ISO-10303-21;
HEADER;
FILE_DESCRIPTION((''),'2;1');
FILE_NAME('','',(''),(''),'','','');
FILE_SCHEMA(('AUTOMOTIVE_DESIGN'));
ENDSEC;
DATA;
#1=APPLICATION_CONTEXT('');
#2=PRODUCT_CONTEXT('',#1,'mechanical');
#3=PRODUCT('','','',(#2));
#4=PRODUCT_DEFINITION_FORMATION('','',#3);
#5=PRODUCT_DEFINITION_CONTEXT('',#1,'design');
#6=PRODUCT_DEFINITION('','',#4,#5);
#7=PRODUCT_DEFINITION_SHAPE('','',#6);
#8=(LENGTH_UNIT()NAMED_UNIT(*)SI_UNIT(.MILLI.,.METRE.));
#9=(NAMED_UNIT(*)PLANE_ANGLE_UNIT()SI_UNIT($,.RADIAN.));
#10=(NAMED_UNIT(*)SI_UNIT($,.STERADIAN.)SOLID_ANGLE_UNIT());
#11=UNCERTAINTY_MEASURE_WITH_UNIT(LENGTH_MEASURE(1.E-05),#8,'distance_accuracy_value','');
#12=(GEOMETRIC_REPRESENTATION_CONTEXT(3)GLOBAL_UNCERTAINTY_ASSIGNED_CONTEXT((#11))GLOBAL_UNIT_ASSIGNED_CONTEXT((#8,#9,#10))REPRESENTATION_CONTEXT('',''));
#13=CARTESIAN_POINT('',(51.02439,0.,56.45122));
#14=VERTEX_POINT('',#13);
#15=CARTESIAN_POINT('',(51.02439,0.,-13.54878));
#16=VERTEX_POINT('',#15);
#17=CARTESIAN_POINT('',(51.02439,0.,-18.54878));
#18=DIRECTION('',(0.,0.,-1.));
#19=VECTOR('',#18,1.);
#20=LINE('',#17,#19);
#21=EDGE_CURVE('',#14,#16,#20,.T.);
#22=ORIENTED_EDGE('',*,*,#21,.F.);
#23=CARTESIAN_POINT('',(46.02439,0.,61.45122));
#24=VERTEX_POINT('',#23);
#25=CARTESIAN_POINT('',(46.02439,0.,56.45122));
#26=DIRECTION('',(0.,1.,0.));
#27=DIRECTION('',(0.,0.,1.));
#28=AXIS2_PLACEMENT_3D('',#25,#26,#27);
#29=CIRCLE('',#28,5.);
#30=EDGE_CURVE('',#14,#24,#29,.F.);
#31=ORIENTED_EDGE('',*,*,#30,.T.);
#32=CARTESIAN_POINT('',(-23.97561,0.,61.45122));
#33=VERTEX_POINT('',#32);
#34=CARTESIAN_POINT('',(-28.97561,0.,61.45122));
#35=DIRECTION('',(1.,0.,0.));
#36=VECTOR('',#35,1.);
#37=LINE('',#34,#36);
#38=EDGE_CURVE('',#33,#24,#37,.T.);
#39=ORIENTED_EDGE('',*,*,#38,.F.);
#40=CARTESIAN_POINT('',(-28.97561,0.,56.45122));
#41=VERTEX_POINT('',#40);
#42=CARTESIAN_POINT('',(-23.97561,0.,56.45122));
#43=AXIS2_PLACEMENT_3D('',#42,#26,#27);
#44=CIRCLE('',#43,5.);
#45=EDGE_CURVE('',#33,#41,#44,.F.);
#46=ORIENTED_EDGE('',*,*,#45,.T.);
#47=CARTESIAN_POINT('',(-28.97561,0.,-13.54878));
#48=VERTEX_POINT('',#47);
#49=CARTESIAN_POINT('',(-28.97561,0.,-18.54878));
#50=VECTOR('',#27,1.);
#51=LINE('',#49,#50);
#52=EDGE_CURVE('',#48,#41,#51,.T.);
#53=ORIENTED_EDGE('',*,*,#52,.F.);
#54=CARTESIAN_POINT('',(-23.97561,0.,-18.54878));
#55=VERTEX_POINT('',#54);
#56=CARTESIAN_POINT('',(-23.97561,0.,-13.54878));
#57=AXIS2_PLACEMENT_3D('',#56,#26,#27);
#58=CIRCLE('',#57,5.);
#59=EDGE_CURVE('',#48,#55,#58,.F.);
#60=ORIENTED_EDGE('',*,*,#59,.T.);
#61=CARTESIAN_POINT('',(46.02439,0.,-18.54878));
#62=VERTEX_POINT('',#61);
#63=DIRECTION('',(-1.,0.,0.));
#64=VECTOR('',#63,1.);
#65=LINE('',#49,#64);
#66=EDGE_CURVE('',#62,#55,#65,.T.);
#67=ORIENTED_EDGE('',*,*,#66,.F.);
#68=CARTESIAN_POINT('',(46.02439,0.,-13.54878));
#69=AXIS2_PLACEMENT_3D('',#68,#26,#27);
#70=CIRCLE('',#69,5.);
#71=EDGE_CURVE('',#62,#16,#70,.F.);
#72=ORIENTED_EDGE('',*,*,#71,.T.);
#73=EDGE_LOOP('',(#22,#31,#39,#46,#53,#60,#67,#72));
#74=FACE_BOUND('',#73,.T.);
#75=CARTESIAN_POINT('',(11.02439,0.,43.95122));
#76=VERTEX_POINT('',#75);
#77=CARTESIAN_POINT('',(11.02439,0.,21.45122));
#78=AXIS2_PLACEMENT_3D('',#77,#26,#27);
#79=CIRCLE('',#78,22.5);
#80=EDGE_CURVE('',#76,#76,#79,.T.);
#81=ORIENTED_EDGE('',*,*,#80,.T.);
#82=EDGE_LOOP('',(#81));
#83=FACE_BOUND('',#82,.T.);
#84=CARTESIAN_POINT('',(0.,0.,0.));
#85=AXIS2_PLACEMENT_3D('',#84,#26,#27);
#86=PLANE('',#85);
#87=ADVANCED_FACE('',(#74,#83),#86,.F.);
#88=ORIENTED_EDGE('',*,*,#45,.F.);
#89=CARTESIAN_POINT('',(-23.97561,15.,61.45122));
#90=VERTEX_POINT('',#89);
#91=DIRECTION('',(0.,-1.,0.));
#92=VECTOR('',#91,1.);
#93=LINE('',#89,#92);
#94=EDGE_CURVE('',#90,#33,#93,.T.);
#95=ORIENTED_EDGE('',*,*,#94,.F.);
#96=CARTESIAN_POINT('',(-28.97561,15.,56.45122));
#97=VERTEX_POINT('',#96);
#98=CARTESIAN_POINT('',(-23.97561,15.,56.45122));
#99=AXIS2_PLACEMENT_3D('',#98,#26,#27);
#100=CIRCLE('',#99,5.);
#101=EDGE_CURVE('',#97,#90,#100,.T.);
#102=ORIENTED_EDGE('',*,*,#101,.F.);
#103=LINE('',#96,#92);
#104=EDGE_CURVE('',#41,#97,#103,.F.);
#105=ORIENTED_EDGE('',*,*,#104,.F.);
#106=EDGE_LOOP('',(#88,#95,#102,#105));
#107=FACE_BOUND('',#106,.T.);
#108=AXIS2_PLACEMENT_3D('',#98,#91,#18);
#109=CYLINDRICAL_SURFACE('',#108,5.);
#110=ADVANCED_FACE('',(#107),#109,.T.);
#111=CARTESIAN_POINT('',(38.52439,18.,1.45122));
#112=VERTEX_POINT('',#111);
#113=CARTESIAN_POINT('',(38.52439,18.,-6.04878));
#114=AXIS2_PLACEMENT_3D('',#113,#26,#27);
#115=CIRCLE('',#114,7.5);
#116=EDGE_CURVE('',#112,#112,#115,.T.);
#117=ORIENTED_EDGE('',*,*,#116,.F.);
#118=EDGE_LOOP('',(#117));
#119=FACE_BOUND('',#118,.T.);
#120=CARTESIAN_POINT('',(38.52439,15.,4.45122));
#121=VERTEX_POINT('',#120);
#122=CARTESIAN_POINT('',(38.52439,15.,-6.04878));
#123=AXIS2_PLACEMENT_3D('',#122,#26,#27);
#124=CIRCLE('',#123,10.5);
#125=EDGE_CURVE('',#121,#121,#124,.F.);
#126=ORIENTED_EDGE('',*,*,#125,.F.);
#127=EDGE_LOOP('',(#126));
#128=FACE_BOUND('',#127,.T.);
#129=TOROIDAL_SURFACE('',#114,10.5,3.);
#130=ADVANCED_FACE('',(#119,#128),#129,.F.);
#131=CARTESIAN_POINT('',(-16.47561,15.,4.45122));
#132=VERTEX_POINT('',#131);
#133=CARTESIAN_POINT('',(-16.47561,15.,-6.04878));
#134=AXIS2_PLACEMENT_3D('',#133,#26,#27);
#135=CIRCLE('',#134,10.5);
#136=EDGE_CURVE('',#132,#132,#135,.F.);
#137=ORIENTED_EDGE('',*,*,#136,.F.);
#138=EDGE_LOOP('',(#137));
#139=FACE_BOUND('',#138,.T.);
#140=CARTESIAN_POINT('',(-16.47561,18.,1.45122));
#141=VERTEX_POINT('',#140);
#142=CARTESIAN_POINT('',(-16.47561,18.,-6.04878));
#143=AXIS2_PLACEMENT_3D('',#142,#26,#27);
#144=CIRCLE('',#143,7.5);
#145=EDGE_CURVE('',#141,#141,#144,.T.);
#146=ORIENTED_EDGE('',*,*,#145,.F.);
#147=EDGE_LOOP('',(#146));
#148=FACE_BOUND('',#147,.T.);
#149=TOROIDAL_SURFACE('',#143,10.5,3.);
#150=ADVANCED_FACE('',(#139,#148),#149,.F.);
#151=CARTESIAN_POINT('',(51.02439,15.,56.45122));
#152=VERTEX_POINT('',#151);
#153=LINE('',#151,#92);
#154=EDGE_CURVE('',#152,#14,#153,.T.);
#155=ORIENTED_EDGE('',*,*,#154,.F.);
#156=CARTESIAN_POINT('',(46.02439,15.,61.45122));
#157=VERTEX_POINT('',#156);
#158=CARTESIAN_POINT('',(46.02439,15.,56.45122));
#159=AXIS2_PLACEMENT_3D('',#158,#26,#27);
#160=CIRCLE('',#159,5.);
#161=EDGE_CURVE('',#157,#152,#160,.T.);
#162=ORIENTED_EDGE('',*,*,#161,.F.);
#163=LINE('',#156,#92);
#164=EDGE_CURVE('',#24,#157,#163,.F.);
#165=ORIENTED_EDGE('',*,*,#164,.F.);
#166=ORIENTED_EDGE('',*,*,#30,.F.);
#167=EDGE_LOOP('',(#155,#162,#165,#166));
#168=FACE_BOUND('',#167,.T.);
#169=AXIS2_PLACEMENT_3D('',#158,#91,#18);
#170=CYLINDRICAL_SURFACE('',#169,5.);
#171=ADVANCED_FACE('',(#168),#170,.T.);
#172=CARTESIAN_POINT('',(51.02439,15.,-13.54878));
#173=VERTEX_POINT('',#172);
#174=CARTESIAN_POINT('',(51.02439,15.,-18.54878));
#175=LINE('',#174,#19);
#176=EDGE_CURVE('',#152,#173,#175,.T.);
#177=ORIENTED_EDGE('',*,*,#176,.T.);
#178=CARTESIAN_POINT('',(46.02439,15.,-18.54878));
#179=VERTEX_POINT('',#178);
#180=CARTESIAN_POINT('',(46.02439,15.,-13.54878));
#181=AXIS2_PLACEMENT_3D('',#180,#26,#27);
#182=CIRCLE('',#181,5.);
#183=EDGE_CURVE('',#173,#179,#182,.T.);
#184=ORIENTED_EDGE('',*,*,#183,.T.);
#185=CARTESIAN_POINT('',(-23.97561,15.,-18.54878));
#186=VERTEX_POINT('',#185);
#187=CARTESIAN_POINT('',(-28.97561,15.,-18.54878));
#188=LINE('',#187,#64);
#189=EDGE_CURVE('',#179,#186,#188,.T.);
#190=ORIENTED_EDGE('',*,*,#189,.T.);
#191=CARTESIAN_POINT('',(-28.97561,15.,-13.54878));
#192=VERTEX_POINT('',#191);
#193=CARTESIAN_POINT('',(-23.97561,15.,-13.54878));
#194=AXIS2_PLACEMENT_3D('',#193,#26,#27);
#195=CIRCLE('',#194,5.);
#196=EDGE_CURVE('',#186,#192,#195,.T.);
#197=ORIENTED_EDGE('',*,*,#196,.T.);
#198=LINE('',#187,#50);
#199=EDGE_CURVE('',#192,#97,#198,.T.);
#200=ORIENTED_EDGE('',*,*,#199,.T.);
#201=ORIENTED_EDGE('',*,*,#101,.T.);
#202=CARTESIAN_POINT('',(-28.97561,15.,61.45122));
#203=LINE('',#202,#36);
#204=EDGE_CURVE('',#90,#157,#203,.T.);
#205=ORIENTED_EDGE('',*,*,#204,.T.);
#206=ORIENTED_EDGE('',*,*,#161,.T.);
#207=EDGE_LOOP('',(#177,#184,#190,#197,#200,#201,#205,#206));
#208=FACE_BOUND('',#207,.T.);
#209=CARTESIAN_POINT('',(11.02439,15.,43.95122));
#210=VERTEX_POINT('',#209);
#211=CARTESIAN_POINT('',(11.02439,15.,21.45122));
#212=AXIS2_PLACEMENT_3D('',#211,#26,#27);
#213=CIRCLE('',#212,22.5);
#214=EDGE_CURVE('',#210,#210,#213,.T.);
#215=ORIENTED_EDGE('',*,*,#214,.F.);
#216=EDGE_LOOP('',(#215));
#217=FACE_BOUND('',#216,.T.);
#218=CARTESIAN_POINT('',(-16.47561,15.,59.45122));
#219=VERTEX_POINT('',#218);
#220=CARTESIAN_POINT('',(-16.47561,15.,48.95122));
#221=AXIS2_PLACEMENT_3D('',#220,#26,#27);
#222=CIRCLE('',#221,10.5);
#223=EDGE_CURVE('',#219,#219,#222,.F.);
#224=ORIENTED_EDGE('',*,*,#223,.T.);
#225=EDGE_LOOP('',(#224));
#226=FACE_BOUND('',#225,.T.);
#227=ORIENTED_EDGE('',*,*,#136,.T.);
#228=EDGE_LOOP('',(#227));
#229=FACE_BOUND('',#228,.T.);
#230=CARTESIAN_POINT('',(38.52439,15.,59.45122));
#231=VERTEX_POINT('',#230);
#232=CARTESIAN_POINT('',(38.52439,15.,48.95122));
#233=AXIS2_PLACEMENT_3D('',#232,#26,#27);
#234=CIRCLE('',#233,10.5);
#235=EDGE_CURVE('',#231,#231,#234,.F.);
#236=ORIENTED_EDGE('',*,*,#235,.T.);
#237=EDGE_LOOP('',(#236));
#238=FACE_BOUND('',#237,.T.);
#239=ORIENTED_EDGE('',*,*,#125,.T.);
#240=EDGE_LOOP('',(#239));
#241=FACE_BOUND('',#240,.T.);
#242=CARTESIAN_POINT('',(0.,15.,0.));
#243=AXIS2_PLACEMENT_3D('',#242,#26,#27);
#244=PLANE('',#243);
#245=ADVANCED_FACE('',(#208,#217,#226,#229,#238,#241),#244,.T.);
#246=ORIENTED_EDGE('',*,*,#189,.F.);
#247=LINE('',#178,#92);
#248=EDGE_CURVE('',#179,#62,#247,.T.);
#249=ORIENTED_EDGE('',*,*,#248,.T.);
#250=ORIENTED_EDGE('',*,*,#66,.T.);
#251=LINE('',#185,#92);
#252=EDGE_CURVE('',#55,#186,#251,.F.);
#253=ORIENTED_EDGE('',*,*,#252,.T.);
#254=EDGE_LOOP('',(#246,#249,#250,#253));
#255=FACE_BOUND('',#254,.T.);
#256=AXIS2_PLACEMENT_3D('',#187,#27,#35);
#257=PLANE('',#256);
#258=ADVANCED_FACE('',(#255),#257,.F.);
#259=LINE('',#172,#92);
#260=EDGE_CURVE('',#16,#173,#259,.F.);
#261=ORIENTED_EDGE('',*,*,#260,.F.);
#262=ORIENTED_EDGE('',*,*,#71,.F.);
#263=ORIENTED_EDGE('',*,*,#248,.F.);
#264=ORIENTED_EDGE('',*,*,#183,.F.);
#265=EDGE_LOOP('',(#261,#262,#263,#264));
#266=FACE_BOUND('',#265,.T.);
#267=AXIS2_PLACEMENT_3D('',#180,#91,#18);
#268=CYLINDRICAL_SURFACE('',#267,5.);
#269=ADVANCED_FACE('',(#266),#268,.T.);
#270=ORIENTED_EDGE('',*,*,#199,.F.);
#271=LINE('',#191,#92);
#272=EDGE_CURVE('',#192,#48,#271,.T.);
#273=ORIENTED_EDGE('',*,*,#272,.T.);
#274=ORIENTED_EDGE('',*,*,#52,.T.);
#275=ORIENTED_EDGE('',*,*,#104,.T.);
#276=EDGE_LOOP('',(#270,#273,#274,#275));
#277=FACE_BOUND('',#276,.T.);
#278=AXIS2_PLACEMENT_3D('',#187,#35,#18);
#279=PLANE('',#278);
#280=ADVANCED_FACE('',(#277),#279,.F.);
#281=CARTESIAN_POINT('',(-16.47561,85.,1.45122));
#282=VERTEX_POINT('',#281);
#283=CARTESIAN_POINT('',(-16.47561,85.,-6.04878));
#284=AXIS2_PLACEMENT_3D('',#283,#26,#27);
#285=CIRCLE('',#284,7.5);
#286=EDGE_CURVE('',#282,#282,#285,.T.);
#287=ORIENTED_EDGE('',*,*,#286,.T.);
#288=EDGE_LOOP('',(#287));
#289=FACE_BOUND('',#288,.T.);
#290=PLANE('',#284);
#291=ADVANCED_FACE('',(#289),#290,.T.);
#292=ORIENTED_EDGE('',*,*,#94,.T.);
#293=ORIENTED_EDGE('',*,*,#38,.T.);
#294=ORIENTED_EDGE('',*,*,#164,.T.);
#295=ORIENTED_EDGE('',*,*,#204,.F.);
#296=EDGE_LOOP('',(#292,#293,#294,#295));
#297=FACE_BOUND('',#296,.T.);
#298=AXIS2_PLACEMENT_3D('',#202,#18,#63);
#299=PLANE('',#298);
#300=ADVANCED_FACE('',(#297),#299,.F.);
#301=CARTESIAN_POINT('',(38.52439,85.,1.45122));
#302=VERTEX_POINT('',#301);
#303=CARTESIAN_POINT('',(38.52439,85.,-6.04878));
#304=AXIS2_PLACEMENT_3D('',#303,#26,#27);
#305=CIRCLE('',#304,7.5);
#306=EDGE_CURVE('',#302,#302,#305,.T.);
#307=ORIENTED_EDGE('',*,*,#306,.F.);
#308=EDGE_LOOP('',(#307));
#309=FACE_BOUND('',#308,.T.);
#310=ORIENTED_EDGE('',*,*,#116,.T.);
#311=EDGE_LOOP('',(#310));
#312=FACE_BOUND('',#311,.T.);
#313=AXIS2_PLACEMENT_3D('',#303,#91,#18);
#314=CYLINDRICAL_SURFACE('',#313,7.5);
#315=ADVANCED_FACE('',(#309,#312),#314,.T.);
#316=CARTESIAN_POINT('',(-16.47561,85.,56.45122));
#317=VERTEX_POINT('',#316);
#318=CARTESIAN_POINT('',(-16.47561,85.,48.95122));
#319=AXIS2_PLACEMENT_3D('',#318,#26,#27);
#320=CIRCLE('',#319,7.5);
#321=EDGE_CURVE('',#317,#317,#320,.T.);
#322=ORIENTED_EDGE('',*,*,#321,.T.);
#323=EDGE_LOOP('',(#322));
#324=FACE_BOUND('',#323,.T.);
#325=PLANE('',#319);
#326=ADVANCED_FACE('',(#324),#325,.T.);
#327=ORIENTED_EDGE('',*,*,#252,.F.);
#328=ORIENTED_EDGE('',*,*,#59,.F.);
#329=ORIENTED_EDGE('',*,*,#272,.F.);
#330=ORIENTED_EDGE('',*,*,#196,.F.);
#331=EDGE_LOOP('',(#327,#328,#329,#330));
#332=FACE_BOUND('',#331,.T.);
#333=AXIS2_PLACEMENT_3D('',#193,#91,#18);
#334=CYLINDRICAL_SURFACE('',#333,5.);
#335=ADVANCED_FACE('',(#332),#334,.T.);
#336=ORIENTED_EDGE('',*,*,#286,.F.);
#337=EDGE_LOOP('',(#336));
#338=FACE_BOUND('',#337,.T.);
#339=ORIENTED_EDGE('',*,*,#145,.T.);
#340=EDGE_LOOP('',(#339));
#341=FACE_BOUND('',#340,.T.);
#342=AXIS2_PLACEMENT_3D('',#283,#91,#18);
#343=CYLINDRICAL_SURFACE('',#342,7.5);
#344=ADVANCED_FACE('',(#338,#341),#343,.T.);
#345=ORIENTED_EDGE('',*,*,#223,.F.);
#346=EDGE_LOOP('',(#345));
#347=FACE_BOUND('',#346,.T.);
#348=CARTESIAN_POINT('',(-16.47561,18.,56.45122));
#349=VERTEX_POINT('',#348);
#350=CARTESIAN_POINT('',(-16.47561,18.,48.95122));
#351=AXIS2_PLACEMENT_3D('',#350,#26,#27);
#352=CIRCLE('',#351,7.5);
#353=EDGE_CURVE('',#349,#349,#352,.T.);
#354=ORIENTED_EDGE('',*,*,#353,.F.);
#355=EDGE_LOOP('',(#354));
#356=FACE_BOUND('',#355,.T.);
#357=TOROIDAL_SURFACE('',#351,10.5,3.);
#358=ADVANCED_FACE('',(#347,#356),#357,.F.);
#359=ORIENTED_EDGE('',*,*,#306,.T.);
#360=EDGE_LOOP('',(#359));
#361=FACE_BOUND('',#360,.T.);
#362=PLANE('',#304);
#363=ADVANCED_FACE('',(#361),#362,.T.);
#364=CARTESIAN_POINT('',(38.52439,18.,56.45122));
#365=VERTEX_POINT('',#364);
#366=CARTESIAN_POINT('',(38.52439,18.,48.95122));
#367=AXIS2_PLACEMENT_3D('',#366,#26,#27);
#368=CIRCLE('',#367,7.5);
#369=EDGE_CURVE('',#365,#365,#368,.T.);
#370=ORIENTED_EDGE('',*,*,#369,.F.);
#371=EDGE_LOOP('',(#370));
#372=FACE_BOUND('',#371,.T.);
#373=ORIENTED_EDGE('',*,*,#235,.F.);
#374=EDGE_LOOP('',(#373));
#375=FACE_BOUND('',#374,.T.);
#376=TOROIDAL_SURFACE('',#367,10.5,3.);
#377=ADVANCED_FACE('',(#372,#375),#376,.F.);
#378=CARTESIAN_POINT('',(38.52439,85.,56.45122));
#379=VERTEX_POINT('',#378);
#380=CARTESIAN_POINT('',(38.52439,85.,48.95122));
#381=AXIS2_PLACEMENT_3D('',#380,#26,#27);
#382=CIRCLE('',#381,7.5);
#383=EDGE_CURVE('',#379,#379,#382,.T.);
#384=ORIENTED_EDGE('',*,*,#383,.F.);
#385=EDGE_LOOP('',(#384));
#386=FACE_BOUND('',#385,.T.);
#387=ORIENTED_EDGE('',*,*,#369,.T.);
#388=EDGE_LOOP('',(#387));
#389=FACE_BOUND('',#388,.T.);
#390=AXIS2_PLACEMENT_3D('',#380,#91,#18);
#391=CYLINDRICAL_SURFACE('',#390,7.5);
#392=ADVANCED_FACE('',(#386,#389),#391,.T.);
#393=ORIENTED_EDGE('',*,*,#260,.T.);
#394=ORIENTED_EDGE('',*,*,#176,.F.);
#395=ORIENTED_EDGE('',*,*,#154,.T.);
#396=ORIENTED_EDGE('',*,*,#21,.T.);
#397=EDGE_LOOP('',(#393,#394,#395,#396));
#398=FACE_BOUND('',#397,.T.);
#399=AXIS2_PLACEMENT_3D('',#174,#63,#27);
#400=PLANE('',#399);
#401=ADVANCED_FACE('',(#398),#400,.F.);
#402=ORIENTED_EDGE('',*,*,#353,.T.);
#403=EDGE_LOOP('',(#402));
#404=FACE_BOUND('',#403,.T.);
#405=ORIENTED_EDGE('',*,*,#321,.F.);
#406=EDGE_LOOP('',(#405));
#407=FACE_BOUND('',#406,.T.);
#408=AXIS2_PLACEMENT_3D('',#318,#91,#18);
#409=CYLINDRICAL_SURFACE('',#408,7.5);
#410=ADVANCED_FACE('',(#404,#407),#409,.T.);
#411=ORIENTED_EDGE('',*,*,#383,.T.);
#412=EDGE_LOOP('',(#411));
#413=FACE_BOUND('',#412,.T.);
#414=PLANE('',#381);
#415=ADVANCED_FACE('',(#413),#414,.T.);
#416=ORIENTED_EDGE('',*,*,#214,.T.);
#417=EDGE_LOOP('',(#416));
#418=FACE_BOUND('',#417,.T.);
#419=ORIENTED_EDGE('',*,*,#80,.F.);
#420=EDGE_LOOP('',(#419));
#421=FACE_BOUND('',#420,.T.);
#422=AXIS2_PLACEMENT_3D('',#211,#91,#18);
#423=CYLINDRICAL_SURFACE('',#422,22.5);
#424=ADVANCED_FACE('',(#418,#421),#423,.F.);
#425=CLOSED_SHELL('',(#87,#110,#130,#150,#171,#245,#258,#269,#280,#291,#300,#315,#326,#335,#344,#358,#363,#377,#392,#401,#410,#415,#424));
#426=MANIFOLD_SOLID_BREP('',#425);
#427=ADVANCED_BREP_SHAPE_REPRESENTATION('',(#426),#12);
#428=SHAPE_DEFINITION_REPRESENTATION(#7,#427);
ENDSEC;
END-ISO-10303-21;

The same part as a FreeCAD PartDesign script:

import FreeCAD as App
import Part
import Sketcher

V = App.Vector
Q = App.Units.Quantity


def edges_at(feature, points):
    """Names of the edges that pass closest to the given points."""
    edges = feature.Shape.Edges
    near = lambda p: min(range(len(edges)), key=lambda i: edges[i].distToShape(Part.Vertex(*p))[0])
    return sorted({f"Edge{near(p) + 1}" for p in points})

doc = App.newDocument("Part")
body = doc.addObject("PartDesign::Body", "Body")

# Sketch on XZ plane
sketch1 = doc.addObject("Sketcher::SketchObject", "Sketch")
body.addObject(sketch1)
sketch1.AttachmentSupport = (doc.XZ_Plane, [""])
sketch1.MapMode = "FlatFace"
sketch1.addGeometry([
    Part.LineSegment(V(-29, -19, 0), V(-29, 61, 0)),  # 0
    Part.LineSegment(V(-29, 61, 0), V(51, 61, 0)),  # 1
    Part.LineSegment(V(51, 61, 0), V(51, -19, 0)),  # 2
    Part.LineSegment(V(51, -19, 0), V(-29, -19, 0)),  # 3
    Part.Circle(V(11, 21, 0), V(0, 0, 1), 22),  # 4
], False)
sketch1.addConstraint([
    Sketcher.Constraint("Coincident", 0, 2, 1, 1),
    Sketcher.Constraint("Coincident", 1, 2, 2, 1),
    Sketcher.Constraint("Coincident", 2, 2, 3, 1),
    Sketcher.Constraint("Coincident", 3, 2, 0, 1),
    Sketcher.Constraint("Vertical", 0),
    Sketcher.Constraint("Horizontal", 1),
    Sketcher.Constraint("Vertical", 2),
    Sketcher.Constraint("Horizontal", 3),
    Sketcher.Constraint("Equal", 3, 0),
    Sketcher.Constraint("Diameter", 4, Q("45 mm")),
    Sketcher.Constraint("DistanceX", 1, 1, 1, 2, Q("80 mm")),
    Sketcher.Constraint("DistanceX", 0, 2, 4, 3, Q("40 mm")),
    Sketcher.Constraint("DistanceY", 4, 3, 0, 2, Q("40 mm")),
    Sketcher.Constraint("DistanceX", -1, 1, 4, 3, Q("11.02439 mm")),
    Sketcher.Constraint("DistanceY", -1, 1, 4, 3, Q("21.45122 mm")),
])
pad1 = doc.addObject("PartDesign::Pad", "Pad")
body.addObject(pad1)
pad1.Profile = sketch1
pad1.Length = 15
pad1.Reversed = True
doc.recompute()

fillet = doc.addObject("PartDesign::Fillet", "Fillet")
body.addObject(fillet)
fillet.Base = (pad1, edges_at(pad1, [
    (-28.976, 7.5, -18.549),
    (51.024, 7.5, -18.549),
    (51.024, 7.5, 61.451),
    (-28.976, 7.5, 61.451),
]))
fillet.Radius = 5

# Sketch on XZ plane
sketch2 = doc.addObject("Sketcher::SketchObject", "Sketch001")
body.addObject(sketch2)
sketch2.AttachmentSupport = (doc.XZ_Plane, [""])
sketch2.MapMode = "FlatFace"
sketch2.AttachmentOffset = App.Placement(V(0, 0, -15), App.Rotation())
sketch2.addGeometry([
    Part.Circle(V(-16, -6, 0), V(0, 0, 1), 8),
    Part.Circle(V(39, -6, 0), V(0, 0, 1), 8),
    Part.Circle(V(39, 49, 0), V(0, 0, 1), 8),
    Part.Circle(V(-16, 49, 0), V(0, 0, 1), 8),
], False)
sketch2.addConstraint([
    Sketcher.Constraint("Equal", 0, 1),
    Sketcher.Constraint("Equal", 1, 2),
    Sketcher.Constraint("Equal", 2, 3),
    Sketcher.Constraint("Horizontal", 0, 3, 1, 3),
    Sketcher.Constraint("Horizontal", 2, 3, 3, 3),
    Sketcher.Constraint("Vertical", 1, 3, 2, 3),
    Sketcher.Constraint("Vertical", 0, 3, 3, 3),
    Sketcher.Constraint("Diameter", 0, Q("15 mm")),
    Sketcher.Constraint("DistanceX", 0, 3, 1, 3, Q("55 mm")),
    Sketcher.Constraint("DistanceY", 1, 3, 2, 3, Q("55 mm")),
    Sketcher.Constraint("DistanceX", 0, 3, -1, 1, Q("16.47561 mm")),
    Sketcher.Constraint("DistanceY", 0, 3, -1, 1, Q("6.04878 mm")),
])
pad2 = doc.addObject("PartDesign::Pad", "Pad001")
body.addObject(pad2)
pad2.Profile = sketch2
pad2.Length = 70
pad2.Reversed = True
doc.recompute()

fillet2 = doc.addObject("PartDesign::Fillet", "Fillet001")
body.addObject(fillet2)
fillet2.Base = (pad2, edges_at(pad2, [
    (-16.476, 15, -13.549),
    (38.524, 15, -13.549),
    (38.524, 15, 41.451),
    (-16.476, 15, 41.451),
]))
fillet2.Radius = 3

doc.recompute()
